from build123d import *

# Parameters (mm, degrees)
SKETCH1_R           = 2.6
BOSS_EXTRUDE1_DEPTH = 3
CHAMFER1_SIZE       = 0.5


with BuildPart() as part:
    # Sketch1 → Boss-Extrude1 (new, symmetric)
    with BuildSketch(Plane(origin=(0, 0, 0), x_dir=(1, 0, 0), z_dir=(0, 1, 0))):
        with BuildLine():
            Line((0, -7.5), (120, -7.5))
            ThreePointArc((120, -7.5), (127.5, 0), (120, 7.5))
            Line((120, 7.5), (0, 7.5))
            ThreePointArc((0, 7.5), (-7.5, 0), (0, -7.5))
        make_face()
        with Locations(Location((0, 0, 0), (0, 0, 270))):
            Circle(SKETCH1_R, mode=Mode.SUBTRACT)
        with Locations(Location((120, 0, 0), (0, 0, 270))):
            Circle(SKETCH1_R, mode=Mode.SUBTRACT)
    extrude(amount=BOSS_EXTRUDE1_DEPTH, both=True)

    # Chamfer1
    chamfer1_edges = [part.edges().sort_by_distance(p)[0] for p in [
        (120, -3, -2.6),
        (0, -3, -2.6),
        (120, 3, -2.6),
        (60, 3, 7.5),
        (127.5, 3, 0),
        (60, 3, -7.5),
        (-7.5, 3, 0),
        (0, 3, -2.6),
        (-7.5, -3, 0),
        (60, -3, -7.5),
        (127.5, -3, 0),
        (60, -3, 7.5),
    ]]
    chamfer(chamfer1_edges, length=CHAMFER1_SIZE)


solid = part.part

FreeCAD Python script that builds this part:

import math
import FreeCAD as App
import Part
import Sketcher
Q = App.Units.Quantity


def edges_at(feature, points):
    """Names of the edges that pass closest to the given points."""
    edges = feature.Shape.Edges
    near = lambda p: min(range(len(edges)), key=lambda i: edges[i].distToShape(Part.Vertex(*p))[0])
    return sorted({f"Edge{near(p) + 1}" for p in points})

doc = App.newDocument("Part")
body = doc.addObject("PartDesign::Body", "Body")

sketch1 = body.newObject("Sketcher::SketchObject", "Sketch")
sketch1.AttachmentSupport = (doc.getObject("XZ_Plane"), [""])
sketch1.MapMode = "FlatFace"
sketch1.addGeometry([
    Part.LineSegment(App.Vector(0, 7.5, 0), App.Vector(120, 7.5, 0)),
    Part.ArcOfCircle(Part.Circle(App.Vector(120, 0, 0), App.Vector(0, 0, 1), 7.5), math.radians(-90), math.radians(90)),
    Part.LineSegment(App.Vector(120, -7.5, 0), App.Vector(0, -7.5, 0)),
    Part.ArcOfCircle(Part.Circle(App.Vector(0, 0, 0), App.Vector(0, 0, 1), 7.5), math.radians(90), math.radians(270)),
    Part.Circle(App.Vector(0, 0, 0), App.Vector(0, 0, 1), 2.6),
    Part.Circle(App.Vector(120, 0, 0), App.Vector(0, 0, 1), 2.6),
], False)
sketch1.addConstraint([
    Sketcher.Constraint("Tangent", 0, 2, 1, 2),
    Sketcher.Constraint("Tangent", 1, 1, 2, 1),
    Sketcher.Constraint("Tangent", 2, 2, 3, 2),
    Sketcher.Constraint("Tangent", 3, 1, 0, 1),
    Sketcher.Constraint("Horizontal", 0),
    Sketcher.Constraint("Horizontal", 2),
    Sketcher.Constraint("Coincident", 3, 3, -1, 1),
    Sketcher.Constraint("Coincident", 4, 3, -1, 1),
    Sketcher.Constraint("Coincident", 5, 3, 1, 3),
    Sketcher.Constraint("Equal", 4, 5),
    Sketcher.Constraint("Diameter", 4, Q("5.2 mm")),
    Sketcher.Constraint("Radius", 1, Q("7.5 mm")),
    Sketcher.Constraint("DistanceX", 0, 1, 0, 2, Q("120 mm")),
])
pad1 = body.newObject("PartDesign::Pad", "Pad")
pad1.Profile = sketch1
pad1.Length = 6
pad1.Midplane = True
doc.recompute()

chamfer = body.newObject("PartDesign::Chamfer", "Chamfer")
chamfer.Base = (pad1, edges_at(pad1, [
    (120, -3, -2.6),
    (0, -3, -2.6),
    (120, 3, -2.6),
    (60, 3, 7.5),
    (127.5, 3, 0),
    (60, 3, -7.5),
    (-7.5, 3, 0),
    (0, 3, -2.6),
    (-7.5, -3, 0),
    (60, -3, -7.5),
    (127.5, -3, 0),
    (60, -3, 7.5),
]))
chamfer.Size = 0.5

doc.recompute()
